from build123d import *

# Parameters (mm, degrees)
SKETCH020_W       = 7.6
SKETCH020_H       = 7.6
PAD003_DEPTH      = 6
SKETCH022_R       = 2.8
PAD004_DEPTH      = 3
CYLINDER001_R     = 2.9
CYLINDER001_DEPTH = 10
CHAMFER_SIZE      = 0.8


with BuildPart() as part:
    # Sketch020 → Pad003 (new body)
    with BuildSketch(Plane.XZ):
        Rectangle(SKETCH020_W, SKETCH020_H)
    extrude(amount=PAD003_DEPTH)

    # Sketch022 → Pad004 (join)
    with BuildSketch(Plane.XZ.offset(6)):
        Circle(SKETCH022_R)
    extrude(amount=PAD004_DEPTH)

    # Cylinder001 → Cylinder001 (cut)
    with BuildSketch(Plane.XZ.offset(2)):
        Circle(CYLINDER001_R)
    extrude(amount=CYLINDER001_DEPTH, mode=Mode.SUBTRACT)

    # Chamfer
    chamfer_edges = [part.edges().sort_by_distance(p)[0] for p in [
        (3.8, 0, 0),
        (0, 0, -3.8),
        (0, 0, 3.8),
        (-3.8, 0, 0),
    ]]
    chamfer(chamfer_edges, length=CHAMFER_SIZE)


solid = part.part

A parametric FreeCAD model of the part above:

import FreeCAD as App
import Part
import Sketcher

V = App.Vector


def edges_at(feature, points):
    """Names of the edges that pass closest to the given points."""
    edges = feature.Shape.Edges
    near = lambda p: min(range(len(edges)), key=lambda i: edges[i].distToShape(Part.Vertex(*p))[0])
    return sorted({f"Edge{near(p) + 1}" for p in points})

doc = App.newDocument("Part")
body = doc.addObject("PartDesign::Body", "Body")

# Sketch on XZ plane
sketch1 = doc.addObject("Sketcher::SketchObject", "Sketch")
body.addObject(sketch1)
sketch1.AttachmentSupport = (doc.XZ_Plane, [""])
sketch1.MapMode = "FlatFace"
sketch1.addGeometry([
    Part.LineSegment(V(-4, 4, 0), V(-4, -4, 0)),
    Part.LineSegment(V(-4, -4, 0), V(4, -4, 0)),
    Part.LineSegment(V(4, -4, 0), V(4, 4, 0)),
    Part.LineSegment(V(4, 4, 0), V(-4, 4, 0)),
], False)
sketch1.addConstraint([
    Sketcher.Constraint("Coincident", 0, 2, 1, 1),
    Sketcher.Constraint("Coincident", 1, 2, 2, 1),
    Sketcher.Constraint("Coincident", 2, 2, 3, 1),
    Sketcher.Constraint("Coincident", 3, 2, 0, 1),
    Sketcher.Constraint("Vertical", 0),
    Sketcher.Constraint("Horizontal", 1),
    Sketcher.Constraint("Vertical", 2),
    Sketcher.Constraint("Horizontal", 3),
    Sketcher.Constraint("Symmetric", 0, 2, 2, 2, -1, 1),
    Sketcher.Constraint("Equal", 3, 0),
    Sketcher.Constraint("DistanceX", 1, 1, 1, 2, 7.6),
])
pad1 = doc.addObject("PartDesign::Pad", "Pad")
body.addObject(pad1)
pad1.Profile = sketch1
pad1.Length = 6

# Sketch on XZ plane
sketch2 = doc.addObject("Sketcher::SketchObject", "Sketch001")
body.addObject(sketch2)
sketch2.AttachmentSupport = (doc.XZ_Plane, [""])
sketch2.MapMode = "FlatFace"
sketch2.AttachmentOffset = App.Placement(V(0, 0, 6), App.Rotation())
sketch2.addGeometry(Part.Circle(V(0, 0, 0), V(0, 0, 1), 2.8), False)
sketch2.addConstraint([
    Sketcher.Constraint("Coincident", 0, 3, -1, 1),
    Sketcher.Constraint("Diameter", 0, 5.6),
])
pad2 = doc.addObject("PartDesign::Pad", "Pad001")
body.addObject(pad2)
pad2.Profile = sketch2
pad2.Length = 3

# Sketch on XZ plane
sketch3 = doc.addObject("Sketcher::SketchObject", "Sketch002")
body.addObject(sketch3)
sketch3.AttachmentSupport = (doc.XZ_Plane, [""])
sketch3.MapMode = "FlatFace"
sketch3.AttachmentOffset = App.Placement(V(0, 0, 2), App.Rotation())
sketch3.addGeometry(Part.Circle(V(0, 0, 0), V(0, 0, 1), 2.9), False)
sketch3.addConstraint([
    Sketcher.Constraint("Coincident", 0, 3, -1, 1),
    Sketcher.Constraint("Diameter", 0, 5.8),
])
pocket1 = doc.addObject("PartDesign::Pocket", "Pocket")
body.addObject(pocket1)
pocket1.Profile = sketch3
pocket1.Length = 10
pocket1.Reversed = True
doc.recompute()

chamfer = doc.addObject("PartDesign::Chamfer", "Chamfer")
body.addObject(chamfer)
chamfer.Base = (pocket1, edges_at(pocket1, [
    (3.8, 0, 0),
    (0, 0, -3.8),
    (0, 0, 3.8),
    (-3.8, 0, 0),
]))
chamfer.Size = 0.8

doc.recompute()
